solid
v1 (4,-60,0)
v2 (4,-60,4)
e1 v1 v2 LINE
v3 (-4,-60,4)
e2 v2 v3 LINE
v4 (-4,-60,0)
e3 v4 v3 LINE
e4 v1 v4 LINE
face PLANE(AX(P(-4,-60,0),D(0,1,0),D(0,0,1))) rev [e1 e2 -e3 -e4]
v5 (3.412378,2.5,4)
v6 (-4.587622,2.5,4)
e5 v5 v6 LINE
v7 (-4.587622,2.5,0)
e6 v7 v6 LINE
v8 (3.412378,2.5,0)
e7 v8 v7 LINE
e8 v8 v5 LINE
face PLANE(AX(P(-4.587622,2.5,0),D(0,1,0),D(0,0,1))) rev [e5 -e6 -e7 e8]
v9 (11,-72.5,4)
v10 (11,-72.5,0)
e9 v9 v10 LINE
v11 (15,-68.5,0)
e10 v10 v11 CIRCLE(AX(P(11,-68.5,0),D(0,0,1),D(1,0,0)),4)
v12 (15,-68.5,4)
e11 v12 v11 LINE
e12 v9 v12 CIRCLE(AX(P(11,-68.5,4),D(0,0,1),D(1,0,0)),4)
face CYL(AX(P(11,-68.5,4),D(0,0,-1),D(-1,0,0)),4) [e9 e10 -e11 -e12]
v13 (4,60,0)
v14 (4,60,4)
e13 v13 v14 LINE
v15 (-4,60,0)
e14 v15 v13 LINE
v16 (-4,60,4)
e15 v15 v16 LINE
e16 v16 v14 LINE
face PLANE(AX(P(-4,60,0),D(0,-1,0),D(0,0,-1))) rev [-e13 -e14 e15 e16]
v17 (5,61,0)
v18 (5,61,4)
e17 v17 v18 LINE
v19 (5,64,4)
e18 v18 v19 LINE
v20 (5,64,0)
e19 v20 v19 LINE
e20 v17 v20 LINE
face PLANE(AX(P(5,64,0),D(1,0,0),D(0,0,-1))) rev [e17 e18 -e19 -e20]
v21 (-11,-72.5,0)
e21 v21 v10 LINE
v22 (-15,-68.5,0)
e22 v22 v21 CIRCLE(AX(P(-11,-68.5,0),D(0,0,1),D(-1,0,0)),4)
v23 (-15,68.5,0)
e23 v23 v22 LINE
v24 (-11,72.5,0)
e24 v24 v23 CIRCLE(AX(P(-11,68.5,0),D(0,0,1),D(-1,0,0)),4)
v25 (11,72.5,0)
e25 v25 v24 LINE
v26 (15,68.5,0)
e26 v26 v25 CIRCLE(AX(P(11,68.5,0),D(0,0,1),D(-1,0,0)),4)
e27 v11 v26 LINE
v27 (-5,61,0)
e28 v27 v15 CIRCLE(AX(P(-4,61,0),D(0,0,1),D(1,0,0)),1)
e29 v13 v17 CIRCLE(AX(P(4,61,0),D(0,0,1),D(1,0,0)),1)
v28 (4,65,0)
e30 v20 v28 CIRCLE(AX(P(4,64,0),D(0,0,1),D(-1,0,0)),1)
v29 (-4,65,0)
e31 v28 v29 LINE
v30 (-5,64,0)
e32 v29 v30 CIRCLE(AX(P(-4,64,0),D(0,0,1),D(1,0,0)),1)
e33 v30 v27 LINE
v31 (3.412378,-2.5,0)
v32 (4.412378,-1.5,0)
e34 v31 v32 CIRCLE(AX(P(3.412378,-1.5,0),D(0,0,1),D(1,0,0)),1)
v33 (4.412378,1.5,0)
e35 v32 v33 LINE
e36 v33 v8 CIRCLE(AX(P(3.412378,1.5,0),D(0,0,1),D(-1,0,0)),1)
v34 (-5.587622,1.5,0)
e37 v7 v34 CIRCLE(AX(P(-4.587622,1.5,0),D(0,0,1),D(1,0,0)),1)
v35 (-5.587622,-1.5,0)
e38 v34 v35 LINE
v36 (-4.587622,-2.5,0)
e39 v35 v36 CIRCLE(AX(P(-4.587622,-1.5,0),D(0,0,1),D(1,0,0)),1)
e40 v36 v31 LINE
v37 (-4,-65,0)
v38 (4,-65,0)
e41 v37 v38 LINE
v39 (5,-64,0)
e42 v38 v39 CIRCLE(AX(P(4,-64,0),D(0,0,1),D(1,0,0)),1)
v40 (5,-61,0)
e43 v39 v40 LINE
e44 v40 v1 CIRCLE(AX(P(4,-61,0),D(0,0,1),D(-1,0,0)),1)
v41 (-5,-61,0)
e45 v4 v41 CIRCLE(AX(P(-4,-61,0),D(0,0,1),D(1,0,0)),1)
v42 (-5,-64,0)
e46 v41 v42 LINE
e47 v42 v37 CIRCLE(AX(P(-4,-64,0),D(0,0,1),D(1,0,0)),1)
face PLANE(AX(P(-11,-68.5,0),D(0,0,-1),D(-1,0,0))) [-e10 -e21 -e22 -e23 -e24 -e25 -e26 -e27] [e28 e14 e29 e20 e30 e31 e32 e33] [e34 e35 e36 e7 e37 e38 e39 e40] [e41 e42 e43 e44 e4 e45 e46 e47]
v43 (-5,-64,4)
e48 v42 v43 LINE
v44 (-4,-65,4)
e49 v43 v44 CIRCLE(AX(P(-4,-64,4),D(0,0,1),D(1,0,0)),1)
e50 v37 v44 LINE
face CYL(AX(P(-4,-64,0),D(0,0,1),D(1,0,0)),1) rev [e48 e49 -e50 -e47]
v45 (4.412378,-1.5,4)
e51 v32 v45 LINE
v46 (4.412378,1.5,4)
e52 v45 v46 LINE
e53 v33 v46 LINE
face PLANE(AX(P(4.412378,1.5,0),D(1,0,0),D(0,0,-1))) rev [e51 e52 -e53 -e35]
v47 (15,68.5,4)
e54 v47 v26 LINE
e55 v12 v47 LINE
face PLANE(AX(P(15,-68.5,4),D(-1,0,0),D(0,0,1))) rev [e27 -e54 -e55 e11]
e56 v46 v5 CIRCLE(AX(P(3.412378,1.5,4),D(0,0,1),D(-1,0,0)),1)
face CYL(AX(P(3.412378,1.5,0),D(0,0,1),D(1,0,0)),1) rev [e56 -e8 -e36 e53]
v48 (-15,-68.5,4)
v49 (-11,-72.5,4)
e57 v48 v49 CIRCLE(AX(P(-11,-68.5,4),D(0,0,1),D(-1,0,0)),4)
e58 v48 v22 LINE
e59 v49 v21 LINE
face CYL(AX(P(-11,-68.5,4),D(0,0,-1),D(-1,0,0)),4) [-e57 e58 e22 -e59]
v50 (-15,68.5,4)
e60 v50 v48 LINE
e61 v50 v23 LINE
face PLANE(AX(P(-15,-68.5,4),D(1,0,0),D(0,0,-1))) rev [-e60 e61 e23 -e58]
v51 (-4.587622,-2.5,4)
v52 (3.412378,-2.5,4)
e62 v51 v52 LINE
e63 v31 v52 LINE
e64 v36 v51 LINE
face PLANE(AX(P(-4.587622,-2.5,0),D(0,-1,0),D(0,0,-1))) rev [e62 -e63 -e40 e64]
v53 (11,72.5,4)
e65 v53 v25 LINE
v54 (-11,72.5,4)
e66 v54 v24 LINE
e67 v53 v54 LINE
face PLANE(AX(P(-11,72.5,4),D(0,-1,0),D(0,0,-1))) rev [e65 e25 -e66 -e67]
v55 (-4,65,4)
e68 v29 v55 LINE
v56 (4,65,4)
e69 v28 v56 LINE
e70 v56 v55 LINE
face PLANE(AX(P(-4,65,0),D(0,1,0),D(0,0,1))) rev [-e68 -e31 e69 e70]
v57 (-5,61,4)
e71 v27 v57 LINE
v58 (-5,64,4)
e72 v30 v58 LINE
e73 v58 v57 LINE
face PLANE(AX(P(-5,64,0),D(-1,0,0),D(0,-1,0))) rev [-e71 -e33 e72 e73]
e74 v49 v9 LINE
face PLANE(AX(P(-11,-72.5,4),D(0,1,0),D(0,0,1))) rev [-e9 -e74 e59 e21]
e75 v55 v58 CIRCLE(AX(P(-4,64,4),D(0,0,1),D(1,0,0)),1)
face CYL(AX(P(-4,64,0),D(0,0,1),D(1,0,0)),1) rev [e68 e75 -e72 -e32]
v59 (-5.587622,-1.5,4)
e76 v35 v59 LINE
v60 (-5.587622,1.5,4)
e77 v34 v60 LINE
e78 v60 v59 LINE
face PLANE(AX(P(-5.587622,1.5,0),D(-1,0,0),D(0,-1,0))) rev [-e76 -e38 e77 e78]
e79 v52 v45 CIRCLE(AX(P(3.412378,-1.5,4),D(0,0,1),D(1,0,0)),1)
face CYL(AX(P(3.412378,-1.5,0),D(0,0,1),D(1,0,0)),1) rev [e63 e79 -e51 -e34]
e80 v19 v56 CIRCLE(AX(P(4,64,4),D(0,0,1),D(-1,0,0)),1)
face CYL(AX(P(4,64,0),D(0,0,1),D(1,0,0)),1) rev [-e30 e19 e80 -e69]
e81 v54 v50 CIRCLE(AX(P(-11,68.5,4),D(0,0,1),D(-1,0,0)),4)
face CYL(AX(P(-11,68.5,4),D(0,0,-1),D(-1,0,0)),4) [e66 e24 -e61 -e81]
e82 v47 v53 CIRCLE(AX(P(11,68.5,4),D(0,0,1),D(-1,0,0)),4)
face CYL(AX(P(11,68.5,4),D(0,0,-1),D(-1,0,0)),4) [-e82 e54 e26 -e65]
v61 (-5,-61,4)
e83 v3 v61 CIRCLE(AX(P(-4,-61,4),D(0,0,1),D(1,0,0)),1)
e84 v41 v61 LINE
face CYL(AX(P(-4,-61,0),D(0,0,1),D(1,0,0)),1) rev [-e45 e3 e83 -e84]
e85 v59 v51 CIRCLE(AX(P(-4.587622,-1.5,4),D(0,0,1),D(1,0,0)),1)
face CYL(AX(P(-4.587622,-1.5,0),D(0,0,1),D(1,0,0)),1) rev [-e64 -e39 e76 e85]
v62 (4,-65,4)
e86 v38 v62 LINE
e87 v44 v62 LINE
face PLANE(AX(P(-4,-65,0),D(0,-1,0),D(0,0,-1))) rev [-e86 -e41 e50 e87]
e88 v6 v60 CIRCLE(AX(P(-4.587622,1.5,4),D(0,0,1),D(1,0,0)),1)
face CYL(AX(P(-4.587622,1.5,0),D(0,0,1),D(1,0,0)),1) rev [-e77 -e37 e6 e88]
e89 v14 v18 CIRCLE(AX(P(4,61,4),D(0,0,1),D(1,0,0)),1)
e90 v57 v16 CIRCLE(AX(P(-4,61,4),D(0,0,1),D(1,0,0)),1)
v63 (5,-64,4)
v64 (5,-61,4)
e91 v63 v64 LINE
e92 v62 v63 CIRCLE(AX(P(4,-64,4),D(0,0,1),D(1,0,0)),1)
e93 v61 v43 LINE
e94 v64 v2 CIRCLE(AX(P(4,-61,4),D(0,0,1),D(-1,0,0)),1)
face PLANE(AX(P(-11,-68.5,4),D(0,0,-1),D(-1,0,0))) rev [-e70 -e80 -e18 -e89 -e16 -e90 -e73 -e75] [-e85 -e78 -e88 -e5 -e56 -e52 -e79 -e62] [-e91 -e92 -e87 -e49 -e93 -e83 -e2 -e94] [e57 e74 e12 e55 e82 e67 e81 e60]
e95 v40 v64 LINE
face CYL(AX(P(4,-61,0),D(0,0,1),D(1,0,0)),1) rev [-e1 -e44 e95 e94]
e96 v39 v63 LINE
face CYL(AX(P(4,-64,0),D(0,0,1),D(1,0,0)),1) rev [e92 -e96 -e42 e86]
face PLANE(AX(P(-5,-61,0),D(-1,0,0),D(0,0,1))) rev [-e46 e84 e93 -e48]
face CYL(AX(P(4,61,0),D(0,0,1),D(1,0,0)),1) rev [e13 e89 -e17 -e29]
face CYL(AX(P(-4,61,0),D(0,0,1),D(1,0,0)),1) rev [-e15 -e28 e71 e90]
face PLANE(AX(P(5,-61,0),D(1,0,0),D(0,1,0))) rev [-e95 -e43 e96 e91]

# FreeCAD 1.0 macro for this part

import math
import FreeCAD as App
import Part
import Sketcher

doc = App.newDocument("Part")
body = doc.addObject("PartDesign::Body", "Body")

# Sketch on XY plane
sketch1 = doc.addObject("Sketcher::SketchObject", "Sketch")
body.addObject(sketch1)
sketch1.AttachmentSupport = (doc.XY_Plane, [""])
sketch1.MapMode = "FlatFace"
sketch1.addGeometry([
    Part.LineSegment(App.Vector(-11, -72.5, 0), App.Vector(11, -72.5, 0)),  # 0
    Part.ArcOfCircle(Part.Circle(App.Vector(11, -68.5, 0), App.Vector(0, 0, 1), 4), math.radians(-90), math.radians(0)),  # 1
    Part.LineSegment(App.Vector(15, -68.5, 0), App.Vector(15, 68.5, 0)),  # 2
    Part.ArcOfCircle(Part.Circle(App.Vector(11, 68.5, 0), App.Vector(0, 0, 1), 4), math.radians(0), math.radians(90)),  # 3
    Part.LineSegment(App.Vector(11, 72.5, 0), App.Vector(-11, 72.5, 0)),  # 4
    Part.ArcOfCircle(Part.Circle(App.Vector(-11, 68.5, 0), App.Vector(0, 0, 1), 4), math.radians(90), math.radians(180)),  # 5
    Part.LineSegment(App.Vector(-15, 68.5, 0), App.Vector(-15, -68.5, 0)),  # 6
    Part.ArcOfCircle(Part.Circle(App.Vector(-11, -68.5, 0), App.Vector(0, 0, 1), 4), math.radians(180), math.radians(270)),  # 7
], False)
sketch1.addConstraint([
    Sketcher.Constraint("Tangent", 0, 2, 1, 1),
    Sketcher.Constraint("Tangent", 1, 2, 2, 1),
    Sketcher.Constraint("Tangent", 2, 2, 3, 1),
    Sketcher.Constraint("Tangent", 3, 2, 4, 1),
    Sketcher.Constraint("Tangent", 4, 2, 5, 1),
    Sketcher.Constraint("Tangent", 5, 2, 6, 1),
    Sketcher.Constraint("Tangent", 6, 2, 7, 1),
    Sketcher.Constraint("Tangent", 7, 2, 0, 1),
    Sketcher.Constraint("Horizontal", 0),
    Sketcher.Constraint("Vertical", 2),
    Sketcher.Constraint("Horizontal", 4),
    Sketcher.Constraint("Vertical", 6),
    Sketcher.Constraint("Equal", 1, 3),
    Sketcher.Constraint("Equal", 3, 5),
    Sketcher.Constraint("Equal", 5, 7),
    Sketcher.Constraint("Symmetric", 1, 3, 5, 3, -1, 1),
    Sketcher.Constraint("Radius", 1, 4.0),
    Sketcher.Constraint("DistanceX", 0, 1, 0, 2, 22.0),
    Sketcher.Constraint("DistanceY", 2, 1, 2, 2, 137.0),
])
pad1 = doc.addObject("PartDesign::Pad", "Pad")
body.addObject(pad1)
pad1.Profile = sketch1
pad1.Length = 4

# Sketch on XY plane
sketch2 = doc.addObject("Sketcher::SketchObject", "Sketch001")
body.addObject(sketch2)
sketch2.AttachmentSupport = (doc.XY_Plane, [""])
sketch2.MapMode = "FlatFace"
sketch2.AttachmentOffset = App.Placement(App.Vector(0, 0, 4), App.Rotation())
sketch2.addGeometry([
    Part.LineSegment(App.Vector(4, -60, 0), App.Vector(-4, -60, 0)),  # 0
    Part.ArcOfCircle(Part.Circle(App.Vector(-4, -61, 0), App.Vector(0, 0, 1), 1), math.radians(90), math.radians(180)),  # 1
    Part.LineSegment(App.Vector(-5, -61, 0), App.Vector(-5, -64, 0)),  # 2
    Part.ArcOfCircle(Part.Circle(App.Vector(-4, -64, 0), App.Vector(0, 0, 1), 1), math.radians(-180), math.radians(-90)),  # 3
    Part.LineSegment(App.Vector(-4, -65, 0), App.Vector(4, -65, 0)),  # 4
    Part.ArcOfCircle(Part.Circle(App.Vector(4, -64, 0), App.Vector(0, 0, 1), 1), math.radians(-90), math.radians(0)),  # 5
    Part.LineSegment(App.Vector(5, -64, 0), App.Vector(5, -61, 0)),  # 6
    Part.ArcOfCircle(Part.Circle(App.Vector(4, -61, 0), App.Vector(0, 0, 1), 1), math.radians(0), math.radians(90)),  # 7
    Part.LineSegment(App.Vector(4, 65, 0), App.Vector(-4, 65, 0)),  # 8
    Part.ArcOfCircle(Part.Circle(App.Vector(-4, 64, 0), App.Vector(0, 0, 1), 1), math.radians(90), math.radians(180)),  # 9
    Part.LineSegment(App.Vector(-5, 64, 0), App.Vector(-5, 61, 0)),  # 10
    Part.ArcOfCircle(Part.Circle(App.Vector(-4, 61, 0), App.Vector(0, 0, 1), 1), math.radians(-180), math.radians(-90)),  # 11
    Part.LineSegment(App.Vector(-4, 60, 0), App.Vector(4, 60, 0)),  # 12
    Part.ArcOfCircle(Part.Circle(App.Vector(4, 61, 0), App.Vector(0, 0, 1), 1), math.radians(-90), math.radians(0)),  # 13
    Part.LineSegment(App.Vector(5, 61, 0), App.Vector(5, 64, 0)),  # 14
    Part.ArcOfCircle(Part.Circle(App.Vector(4, 64, 0), App.Vector(0, 0, 1), 1), math.radians(0), math.radians(90)),  # 15
    Part.LineSegment(App.Vector(3.4, 2.5, 0), App.Vector(-4.6, 2.5, 0)),  # 16
    Part.ArcOfCircle(Part.Circle(App.Vector(-4.6, 1.5, 0), App.Vector(0, 0, 1), 1), math.radians(90), math.radians(180)),  # 17
    Part.LineSegment(App.Vector(-5.6, 1.5, 0), App.Vector(-5.6, -1.5, 0)),  # 18
    Part.ArcOfCircle(Part.Circle(App.Vector(-4.6, -1.5, 0), App.Vector(0, 0, 1), 1), math.radians(-180), math.radians(-90)),  # 19
    Part.LineSegment(App.Vector(-4.6, -2.5, 0), App.Vector(3.4, -2.5, 0)),  # 20
    Part.ArcOfCircle(Part.Circle(App.Vector(3.4, -1.5, 0), App.Vector(0, 0, 1), 1), math.radians(-90), math.radians(0)),  # 21
    Part.LineSegment(App.Vector(4.4, -1.5, 0), App.Vector(4.4, 1.5, 0)),  # 22
    Part.ArcOfCircle(Part.Circle(App.Vector(3.4, 1.5, 0), App.Vector(0, 0, 1), 1), math.radians(0), math.radians(90)),  # 23
], False)
sketch2.addConstraint([
    Sketcher.Constraint("Tangent", 0, 2, 1, 1),
    Sketcher.Constraint("Tangent", 1, 2, 2, 1),
    Sketcher.Constraint("Tangent", 2, 2, 3, 1),
    Sketcher.Constraint("Tangent", 3, 2, 4, 1),
    Sketcher.Constraint("Tangent", 4, 2, 5, 1),
    Sketcher.Constraint("Tangent", 5, 2, 6, 1),
    Sketcher.Constraint("Tangent", 6, 2, 7, 1),
    Sketcher.Constraint("Tangent", 7, 2, 0, 1),
    Sketcher.Constraint("Tangent", 8, 2, 9, 1),
    Sketcher.Constraint("Tangent", 9, 2, 10, 1),
    Sketcher.Constraint("Tangent", 10, 2, 11, 1),
    Sketcher.Constraint("Tangent", 11, 2, 12, 1),
    Sketcher.Constraint("Tangent", 12, 2, 13, 1),
    Sketcher.Constraint("Tangent", 13, 2, 14, 1),
    Sketcher.Constraint("Tangent", 14, 2, 15, 1),
    Sketcher.Constraint("Tangent", 15, 2, 8, 1),
    Sketcher.Constraint("Tangent", 16, 2, 17, 1),
    Sketcher.Constraint("Tangent", 17, 2, 18, 1),
    Sketcher.Constraint("Tangent", 18, 2, 19, 1),
    Sketcher.Constraint("Tangent", 19, 2, 20, 1),
    Sketcher.Constraint("Tangent", 20, 2, 21, 1),
    Sketcher.Constraint("Tangent", 21, 2, 22, 1),
    Sketcher.Constraint("Tangent", 22, 2, 23, 1),
    Sketcher.Constraint("Tangent", 23, 2, 16, 1),
    Sketcher.Constraint("Horizontal", 0),
    Sketcher.Constraint("Vertical", 2),
    Sketcher.Constraint("Horizontal", 4),
    Sketcher.Constraint("Vertical", 6),
    Sketcher.Constraint("Horizontal", 8),
    Sketcher.Constraint("Vertical", 10),
    Sketcher.Constraint("Horizontal", 12),
    Sketcher.Constraint("Vertical", 14),
    Sketcher.Constraint("Horizontal", 16),
    Sketcher.Constraint("Vertical", 18),
    Sketcher.Constraint("Horizontal", 20),
    Sketcher.Constraint("Vertical", 22),
    Sketcher.Constraint("Equal", 1, 3),
    Sketcher.Constraint("Equal", 3, 5),
    Sketcher.Constraint("Equal", 5, 7),
    Sketcher.Constraint("Equal", 7, 9),
    Sketcher.Constraint("Equal", 9, 11),
    Sketcher.Constraint("Equal", 11, 13),
    Sketcher.Constraint("Equal", 13, 15),
    Sketcher.Constraint("Equal", 15, 17),
    Sketcher.Constraint("Equal", 17, 19),
    Sketcher.Constraint("Equal", 19, 21),
    Sketcher.Constraint("Equal", 21, 23),
    Sketcher.Constraint("Symmetric", 5, 3, 9, 3, -1, 1),
    Sketcher.Constraint("Symmetric", 1, 3, 13, 3, -1, 1),
    Sketcher.Constraint("Vertical", 3, 3, 9, 3),
    Sketcher.Constraint("Equal", 12, 16),
    Sketcher.Constraint("Equal", 14, 18),
    Sketcher.Constraint("Radius", 1, 1.0),
    Sketcher.Constraint("DistanceX", 0, 2, 0, 1, 8.0),
    Sketcher.Constraint("DistanceY", 2, 2, 2, 1, 3.0),
    Sketcher.Constraint("DistanceY", 1, 3, -1, 1, 61.0),
    Sketcher.Constraint("DistanceY", -1, 1, 17, 3, 1.5),
    Sketcher.Constraint("DistanceX", 17, 3, -1, 1, 4.587622),
])
pocket1 = doc.addObject("PartDesign::Pocket", "Pocket")
body.addObject(pocket1)
pocket1.Profile = sketch2
pocket1.Type = "ThroughAll"

doc.recompute()
